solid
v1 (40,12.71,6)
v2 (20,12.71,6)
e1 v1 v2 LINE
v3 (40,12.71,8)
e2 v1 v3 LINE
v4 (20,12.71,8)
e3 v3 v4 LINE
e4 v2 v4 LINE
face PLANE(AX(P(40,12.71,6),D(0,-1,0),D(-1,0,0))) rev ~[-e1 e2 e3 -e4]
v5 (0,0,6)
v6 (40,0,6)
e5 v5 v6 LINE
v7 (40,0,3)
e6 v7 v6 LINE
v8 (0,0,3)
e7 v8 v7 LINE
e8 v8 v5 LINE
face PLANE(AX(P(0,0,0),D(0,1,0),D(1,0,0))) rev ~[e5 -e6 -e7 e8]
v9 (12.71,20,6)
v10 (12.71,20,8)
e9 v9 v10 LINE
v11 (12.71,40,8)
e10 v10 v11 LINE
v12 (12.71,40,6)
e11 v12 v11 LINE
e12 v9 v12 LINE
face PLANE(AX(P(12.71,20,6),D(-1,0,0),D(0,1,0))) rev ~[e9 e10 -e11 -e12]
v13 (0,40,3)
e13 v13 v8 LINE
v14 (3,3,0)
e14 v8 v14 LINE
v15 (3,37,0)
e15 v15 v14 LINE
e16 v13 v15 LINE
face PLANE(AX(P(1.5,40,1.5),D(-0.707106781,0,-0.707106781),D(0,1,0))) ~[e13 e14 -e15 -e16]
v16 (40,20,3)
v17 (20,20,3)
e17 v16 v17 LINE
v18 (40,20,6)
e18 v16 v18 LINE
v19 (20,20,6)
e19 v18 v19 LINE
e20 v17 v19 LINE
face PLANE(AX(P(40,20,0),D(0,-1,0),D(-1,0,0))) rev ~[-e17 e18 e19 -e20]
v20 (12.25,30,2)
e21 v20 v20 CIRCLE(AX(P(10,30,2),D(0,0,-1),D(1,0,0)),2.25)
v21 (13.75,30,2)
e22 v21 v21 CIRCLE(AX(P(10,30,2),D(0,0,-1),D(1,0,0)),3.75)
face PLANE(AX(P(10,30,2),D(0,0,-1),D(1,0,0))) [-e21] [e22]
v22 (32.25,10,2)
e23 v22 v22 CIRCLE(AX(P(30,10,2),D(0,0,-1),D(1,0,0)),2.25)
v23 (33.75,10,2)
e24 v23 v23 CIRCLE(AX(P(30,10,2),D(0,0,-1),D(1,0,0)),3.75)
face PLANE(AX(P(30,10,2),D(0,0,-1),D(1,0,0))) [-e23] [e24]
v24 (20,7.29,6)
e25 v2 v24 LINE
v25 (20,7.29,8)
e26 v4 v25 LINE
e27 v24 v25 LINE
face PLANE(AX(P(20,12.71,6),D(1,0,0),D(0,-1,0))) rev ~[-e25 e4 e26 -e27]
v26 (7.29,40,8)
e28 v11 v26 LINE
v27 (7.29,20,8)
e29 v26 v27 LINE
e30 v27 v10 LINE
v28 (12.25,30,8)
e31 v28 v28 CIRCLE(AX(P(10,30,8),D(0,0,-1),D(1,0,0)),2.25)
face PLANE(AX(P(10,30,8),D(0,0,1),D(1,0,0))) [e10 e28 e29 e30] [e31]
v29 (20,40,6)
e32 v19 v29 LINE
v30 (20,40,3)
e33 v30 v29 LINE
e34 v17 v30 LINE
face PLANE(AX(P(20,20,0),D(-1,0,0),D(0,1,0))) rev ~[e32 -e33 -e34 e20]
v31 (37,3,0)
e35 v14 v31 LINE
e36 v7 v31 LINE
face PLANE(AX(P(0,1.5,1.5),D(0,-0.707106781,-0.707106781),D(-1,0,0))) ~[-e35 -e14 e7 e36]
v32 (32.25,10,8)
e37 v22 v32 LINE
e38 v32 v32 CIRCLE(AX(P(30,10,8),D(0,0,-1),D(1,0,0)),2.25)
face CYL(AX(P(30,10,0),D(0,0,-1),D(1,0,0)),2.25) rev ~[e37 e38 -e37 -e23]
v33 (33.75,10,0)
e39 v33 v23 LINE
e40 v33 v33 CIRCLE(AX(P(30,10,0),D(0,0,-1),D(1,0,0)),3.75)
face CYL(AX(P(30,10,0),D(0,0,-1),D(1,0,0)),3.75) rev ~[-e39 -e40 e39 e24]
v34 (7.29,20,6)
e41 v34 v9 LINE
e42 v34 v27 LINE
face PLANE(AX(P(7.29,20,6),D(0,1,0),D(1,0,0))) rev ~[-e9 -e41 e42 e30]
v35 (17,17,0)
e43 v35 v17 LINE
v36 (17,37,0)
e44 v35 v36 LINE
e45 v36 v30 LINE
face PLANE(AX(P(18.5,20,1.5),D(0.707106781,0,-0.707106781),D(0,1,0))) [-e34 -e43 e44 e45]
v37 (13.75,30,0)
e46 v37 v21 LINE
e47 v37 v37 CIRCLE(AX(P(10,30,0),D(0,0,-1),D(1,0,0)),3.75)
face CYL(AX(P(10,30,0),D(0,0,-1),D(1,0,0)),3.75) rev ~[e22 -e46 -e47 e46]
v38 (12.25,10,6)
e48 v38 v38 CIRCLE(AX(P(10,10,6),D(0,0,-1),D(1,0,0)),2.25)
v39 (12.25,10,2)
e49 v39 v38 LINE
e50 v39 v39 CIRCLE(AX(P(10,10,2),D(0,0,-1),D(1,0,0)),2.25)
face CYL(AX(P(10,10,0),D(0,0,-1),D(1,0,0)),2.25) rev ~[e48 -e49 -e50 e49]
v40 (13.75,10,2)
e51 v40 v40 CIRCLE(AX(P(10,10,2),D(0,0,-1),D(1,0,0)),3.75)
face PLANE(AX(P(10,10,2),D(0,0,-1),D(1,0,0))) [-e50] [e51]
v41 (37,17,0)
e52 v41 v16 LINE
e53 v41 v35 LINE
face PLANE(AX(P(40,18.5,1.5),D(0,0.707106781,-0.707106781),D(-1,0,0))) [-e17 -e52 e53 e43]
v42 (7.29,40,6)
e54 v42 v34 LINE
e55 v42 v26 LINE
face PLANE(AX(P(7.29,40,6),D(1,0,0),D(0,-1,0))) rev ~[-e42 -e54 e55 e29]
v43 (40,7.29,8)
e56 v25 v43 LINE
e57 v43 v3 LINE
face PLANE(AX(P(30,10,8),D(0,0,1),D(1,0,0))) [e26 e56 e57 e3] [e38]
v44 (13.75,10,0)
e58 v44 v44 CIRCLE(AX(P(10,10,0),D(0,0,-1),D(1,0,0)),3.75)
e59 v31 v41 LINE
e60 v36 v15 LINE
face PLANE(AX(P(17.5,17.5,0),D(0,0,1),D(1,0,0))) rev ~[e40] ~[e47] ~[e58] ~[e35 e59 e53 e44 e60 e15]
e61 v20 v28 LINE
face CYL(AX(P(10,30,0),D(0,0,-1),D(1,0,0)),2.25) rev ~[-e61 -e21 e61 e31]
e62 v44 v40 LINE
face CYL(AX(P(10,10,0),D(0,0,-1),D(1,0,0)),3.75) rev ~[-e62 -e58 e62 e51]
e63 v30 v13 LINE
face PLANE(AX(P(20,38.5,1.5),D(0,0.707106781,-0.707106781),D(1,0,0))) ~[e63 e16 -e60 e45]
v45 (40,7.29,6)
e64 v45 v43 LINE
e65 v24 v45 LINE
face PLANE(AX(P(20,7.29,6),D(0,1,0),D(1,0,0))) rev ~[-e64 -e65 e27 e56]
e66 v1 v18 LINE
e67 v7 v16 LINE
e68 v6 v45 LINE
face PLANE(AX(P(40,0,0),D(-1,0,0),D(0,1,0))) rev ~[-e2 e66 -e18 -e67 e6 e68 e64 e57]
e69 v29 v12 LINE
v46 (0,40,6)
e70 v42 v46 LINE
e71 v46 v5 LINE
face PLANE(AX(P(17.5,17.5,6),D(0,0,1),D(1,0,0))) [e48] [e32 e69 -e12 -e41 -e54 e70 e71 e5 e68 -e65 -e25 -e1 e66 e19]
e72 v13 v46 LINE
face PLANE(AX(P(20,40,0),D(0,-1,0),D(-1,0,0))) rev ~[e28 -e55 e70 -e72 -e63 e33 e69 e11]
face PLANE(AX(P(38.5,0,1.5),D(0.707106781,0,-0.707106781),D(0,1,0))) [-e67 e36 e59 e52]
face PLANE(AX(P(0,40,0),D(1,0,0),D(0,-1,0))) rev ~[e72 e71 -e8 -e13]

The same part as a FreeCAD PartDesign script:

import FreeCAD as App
import Part
import Sketcher

V = App.Vector


def edges_at(feature, points):
    """Names of the edges that pass closest to the given points."""
    edges = feature.Shape.Edges
    near = lambda p: min(range(len(edges)), key=lambda i: edges[i].distToShape(Part.Vertex(*p))[0])
    return sorted({f"Edge{near(p) + 1}" for p in points})


def add_polygon(sketch, points):
    """Adds a closed chain of lines whose ends are joined by coincident constraints."""
    first, n = sketch.GeometryCount, len(points)
    for a, b in zip(points, points[1:] + points[:1]):
        sketch.addGeometry(Part.LineSegment(App.Vector(*a, 0), App.Vector(*b, 0)), False)
    for i in range(n):
        sketch.addConstraint(Sketcher.Constraint("Coincident", first + i, 2, first + (i + 1) % n, 1))

doc = App.newDocument("Part")
params = doc.addObject("Spreadsheet::Sheet", "Params")
for row, (alias, value) in enumerate([
    ("sketch1_width", "40 mm"),
    ("pad1_length", "6 mm"),
    ("sketch2_width", "20 mm"),
    ("sketch2_width2", "5.42 mm"),
    ("pad2_length", "2 mm"),
    ("sketch3_diameter", "4.5 mm"),
    ("sketch4_diameter", "7.5 mm"),
    ("pocket2_length", "2 mm"),
    ("chamfer_size", "3 mm"),
], start=1):
    params.set(f"A{row}", alias)
    params.set(f"B{row}", "=" + value)
    params.setAlias(f"B{row}", alias)

body = doc.addObject("PartDesign::Body", "Body")

sketch1 = doc.addObject("Sketcher::SketchObject", "Sketch")
body.addObject(sketch1)
sketch1.AttachmentSupport = (doc.XY_Plane, [""])
sketch1.MapMode = "FlatFace"
add_polygon(sketch1, [(0, 40), (0, 0), (40, 0), (40, 20), (20, 20), (20, 40)])
sketch1.addConstraint(Sketcher.Constraint("Vertical", 0))
sketch1.addConstraint(Sketcher.Constraint("Horizontal", 1))
sketch1.addConstraint(Sketcher.Constraint("Vertical", 2))
sketch1.addConstraint(Sketcher.Constraint("Horizontal", 3))
sketch1.addConstraint(Sketcher.Constraint("Vertical", 4))
sketch1.addConstraint(Sketcher.Constraint("Horizontal", 5))
sketch1.addConstraint(Sketcher.Constraint("Coincident", 0, 2, -1, 1))
sketch1.addConstraint(Sketcher.Constraint("Equal", 3, 5))
sketch1.addConstraint(Sketcher.Constraint("Equal", 1, 0))
sketch1.addConstraint(Sketcher.Constraint("Equal", 5, 2))
sketch1.addConstraint(Sketcher.Constraint("DistanceX", 1, 1, 1, 2, 40.0))
sketch1.setExpression("Constraints[16]", "Params.sketch1_width")
pad1 = doc.addObject("PartDesign::Pad", "Pad")
body.addObject(pad1)
pad1.Profile = sketch1
pad1.setExpression("Length", "Params.pad1_length")

sketch2 = doc.addObject("Sketcher::SketchObject", "Sketch001")
body.addObject(sketch2)
sketch2.AttachmentSupport = (doc.XY_Plane, [""])
sketch2.MapMode = "FlatFace"
sketch2.AttachmentOffset = App.Placement(V(0, 0, 6), App.Rotation())
add_polygon(sketch2, [(13, 40), (7, 40), (7, 20), (13, 20)])
add_polygon(sketch2, [(40, 7), (40, 13), (20, 13), (20, 7)])
sketch2.addConstraint(Sketcher.Constraint("Horizontal", 0))
sketch2.addConstraint(Sketcher.Constraint("Vertical", 1))
sketch2.addConstraint(Sketcher.Constraint("Horizontal", 2))
sketch2.addConstraint(Sketcher.Constraint("Vertical", 3))
sketch2.addConstraint(Sketcher.Constraint("Vertical", 4))
sketch2.addConstraint(Sketcher.Constraint("Horizontal", 5))
sketch2.addConstraint(Sketcher.Constraint("Vertical", 6))
sketch2.addConstraint(Sketcher.Constraint("Horizontal", 7))
sketch2.addConstraint(Sketcher.Constraint("Equal", 7, 1))
sketch2.addConstraint(Sketcher.Constraint("Equal", 2, 4))
sketch2.addConstraint(Sketcher.Constraint("DistanceX", 5, 2, 5, 1, 20.0))
sketch2.addConstraint(Sketcher.Constraint("DistanceY", -1, 1, 0, 2, 40.0))
sketch2.addConstraint(Sketcher.Constraint("DistanceX", -1, 1, 4, 2, 40.0))
sketch2.addConstraint(Sketcher.Constraint("DistanceX", 0, 2, 0, 1, 5.42))
sketch2.addConstraint(Sketcher.Constraint("DistanceX", -1, 1, 0, 2, 7.29))
sketch2.addConstraint(Sketcher.Constraint("DistanceY", -1, 1, 4, 2, 12.71))
sketch2.setExpression("Constraints[18]", "Params.sketch2_width")
sketch2.setExpression("Constraints[21]", "Params.sketch2_width2")
pad2 = doc.addObject("PartDesign::Pad", "Pad001")
body.addObject(pad2)
pad2.Profile = sketch2
pad2.setExpression("Length", "Params.pad2_length")

sketch3 = doc.addObject("Sketcher::SketchObject", "Sketch002")
body.addObject(sketch3)
sketch3.AttachmentSupport = (doc.XY_Plane, [""])
sketch3.MapMode = "FlatFace"
sketch3.addGeometry(Part.Circle(V(10, 30, 0), V(0, 0, 1), 2.2), False)
sketch3.addGeometry(Part.Circle(V(10, 10, 0), V(0, 0, 1), 2.2), False)
sketch3.addGeometry(Part.Circle(V(30, 10, 0), V(0, 0, 1), 2.2), False)
sketch3.addConstraint(Sketcher.Constraint("Equal", 0, 1))
sketch3.addConstraint(Sketcher.Constraint("Equal", 1, 2))
sketch3.addConstraint(Sketcher.Constraint("Horizontal", 1, 3, 2, 3))
sketch3.addConstraint(Sketcher.Constraint("Vertical", 0, 3, 1, 3))
sketch3.addConstraint(Sketcher.Constraint("Diameter", 0, 4.5))
sketch3.addConstraint(Sketcher.Constraint("DistanceX", -1, 1, 0, 3, 10.0))
sketch3.addConstraint(Sketcher.Constraint("DistanceY", -1, 1, 0, 3, 30.0))
sketch3.addConstraint(Sketcher.Constraint("DistanceY", -1, 1, 1, 3, 10.0))
sketch3.addConstraint(Sketcher.Constraint("DistanceX", -1, 1, 2, 3, 30.0))
sketch3.setExpression("Constraints[4]", "Params.sketch3_diameter")
pocket1 = doc.addObject("PartDesign::Pocket", "Pocket")
body.addObject(pocket1)
pocket1.Profile = sketch3
pocket1.Type = "ThroughAll"
pocket1.Reversed = True

sketch4 = doc.addObject("Sketcher::SketchObject", "Sketch003")
body.addObject(sketch4)
sketch4.AttachmentSupport = (doc.XY_Plane, [""])
sketch4.MapMode = "FlatFace"
sketch4.addGeometry(Part.Circle(V(10, 10, 0), V(0, 0, 1), 3.8), False)
sketch4.addGeometry(Part.Circle(V(30, 10, 0), V(0, 0, 1), 3.8), False)
sketch4.addGeometry(Part.Circle(V(10, 30, 0), V(0, 0, 1), 3.8), False)
sketch4.addConstraint(Sketcher.Constraint("Equal", 0, 1))
sketch4.addConstraint(Sketcher.Constraint("Equal", 1, 2))
sketch4.addConstraint(Sketcher.Constraint("Horizontal", 0, 3, 1, 3))
sketch4.addConstraint(Sketcher.Constraint("Vertical", 0, 3, 2, 3))
sketch4.addConstraint(Sketcher.Constraint("Diameter", 0, 7.5))
sketch4.addConstraint(Sketcher.Constraint("DistanceX", -1, 1, 0, 3, 10.0))
sketch4.addConstraint(Sketcher.Constraint("DistanceY", -1, 1, 0, 3, 10.0))
sketch4.addConstraint(Sketcher.Constraint("DistanceX", -1, 1, 1, 3, 30.0))
sketch4.addConstraint(Sketcher.Constraint("DistanceY", -1, 1, 2, 3, 30.0))
sketch4.setExpression("Constraints[4]", "Params.sketch4_diameter")
pocket2 = doc.addObject("PartDesign::Pocket", "Pocket001")
body.addObject(pocket2)
pocket2.Profile = sketch4
pocket2.setExpression("Length", "Params.pocket2_length")
pocket2.Reversed = True
doc.recompute()

chamfer = doc.addObject("PartDesign::Chamfer", "Chamfer")
body.addObject(chamfer)
chamfer.Base = (pocket2, edges_at(pocket2, [
    (20, 0, 0),
    (0, 20, 0),
    (20, 30, 0),
    (30, 20, 0),
    (40, 10, 0),
    (10, 40, 0),
]))
chamfer.setExpression("Size", "Params.chamfer_size")

doc.recompute()
